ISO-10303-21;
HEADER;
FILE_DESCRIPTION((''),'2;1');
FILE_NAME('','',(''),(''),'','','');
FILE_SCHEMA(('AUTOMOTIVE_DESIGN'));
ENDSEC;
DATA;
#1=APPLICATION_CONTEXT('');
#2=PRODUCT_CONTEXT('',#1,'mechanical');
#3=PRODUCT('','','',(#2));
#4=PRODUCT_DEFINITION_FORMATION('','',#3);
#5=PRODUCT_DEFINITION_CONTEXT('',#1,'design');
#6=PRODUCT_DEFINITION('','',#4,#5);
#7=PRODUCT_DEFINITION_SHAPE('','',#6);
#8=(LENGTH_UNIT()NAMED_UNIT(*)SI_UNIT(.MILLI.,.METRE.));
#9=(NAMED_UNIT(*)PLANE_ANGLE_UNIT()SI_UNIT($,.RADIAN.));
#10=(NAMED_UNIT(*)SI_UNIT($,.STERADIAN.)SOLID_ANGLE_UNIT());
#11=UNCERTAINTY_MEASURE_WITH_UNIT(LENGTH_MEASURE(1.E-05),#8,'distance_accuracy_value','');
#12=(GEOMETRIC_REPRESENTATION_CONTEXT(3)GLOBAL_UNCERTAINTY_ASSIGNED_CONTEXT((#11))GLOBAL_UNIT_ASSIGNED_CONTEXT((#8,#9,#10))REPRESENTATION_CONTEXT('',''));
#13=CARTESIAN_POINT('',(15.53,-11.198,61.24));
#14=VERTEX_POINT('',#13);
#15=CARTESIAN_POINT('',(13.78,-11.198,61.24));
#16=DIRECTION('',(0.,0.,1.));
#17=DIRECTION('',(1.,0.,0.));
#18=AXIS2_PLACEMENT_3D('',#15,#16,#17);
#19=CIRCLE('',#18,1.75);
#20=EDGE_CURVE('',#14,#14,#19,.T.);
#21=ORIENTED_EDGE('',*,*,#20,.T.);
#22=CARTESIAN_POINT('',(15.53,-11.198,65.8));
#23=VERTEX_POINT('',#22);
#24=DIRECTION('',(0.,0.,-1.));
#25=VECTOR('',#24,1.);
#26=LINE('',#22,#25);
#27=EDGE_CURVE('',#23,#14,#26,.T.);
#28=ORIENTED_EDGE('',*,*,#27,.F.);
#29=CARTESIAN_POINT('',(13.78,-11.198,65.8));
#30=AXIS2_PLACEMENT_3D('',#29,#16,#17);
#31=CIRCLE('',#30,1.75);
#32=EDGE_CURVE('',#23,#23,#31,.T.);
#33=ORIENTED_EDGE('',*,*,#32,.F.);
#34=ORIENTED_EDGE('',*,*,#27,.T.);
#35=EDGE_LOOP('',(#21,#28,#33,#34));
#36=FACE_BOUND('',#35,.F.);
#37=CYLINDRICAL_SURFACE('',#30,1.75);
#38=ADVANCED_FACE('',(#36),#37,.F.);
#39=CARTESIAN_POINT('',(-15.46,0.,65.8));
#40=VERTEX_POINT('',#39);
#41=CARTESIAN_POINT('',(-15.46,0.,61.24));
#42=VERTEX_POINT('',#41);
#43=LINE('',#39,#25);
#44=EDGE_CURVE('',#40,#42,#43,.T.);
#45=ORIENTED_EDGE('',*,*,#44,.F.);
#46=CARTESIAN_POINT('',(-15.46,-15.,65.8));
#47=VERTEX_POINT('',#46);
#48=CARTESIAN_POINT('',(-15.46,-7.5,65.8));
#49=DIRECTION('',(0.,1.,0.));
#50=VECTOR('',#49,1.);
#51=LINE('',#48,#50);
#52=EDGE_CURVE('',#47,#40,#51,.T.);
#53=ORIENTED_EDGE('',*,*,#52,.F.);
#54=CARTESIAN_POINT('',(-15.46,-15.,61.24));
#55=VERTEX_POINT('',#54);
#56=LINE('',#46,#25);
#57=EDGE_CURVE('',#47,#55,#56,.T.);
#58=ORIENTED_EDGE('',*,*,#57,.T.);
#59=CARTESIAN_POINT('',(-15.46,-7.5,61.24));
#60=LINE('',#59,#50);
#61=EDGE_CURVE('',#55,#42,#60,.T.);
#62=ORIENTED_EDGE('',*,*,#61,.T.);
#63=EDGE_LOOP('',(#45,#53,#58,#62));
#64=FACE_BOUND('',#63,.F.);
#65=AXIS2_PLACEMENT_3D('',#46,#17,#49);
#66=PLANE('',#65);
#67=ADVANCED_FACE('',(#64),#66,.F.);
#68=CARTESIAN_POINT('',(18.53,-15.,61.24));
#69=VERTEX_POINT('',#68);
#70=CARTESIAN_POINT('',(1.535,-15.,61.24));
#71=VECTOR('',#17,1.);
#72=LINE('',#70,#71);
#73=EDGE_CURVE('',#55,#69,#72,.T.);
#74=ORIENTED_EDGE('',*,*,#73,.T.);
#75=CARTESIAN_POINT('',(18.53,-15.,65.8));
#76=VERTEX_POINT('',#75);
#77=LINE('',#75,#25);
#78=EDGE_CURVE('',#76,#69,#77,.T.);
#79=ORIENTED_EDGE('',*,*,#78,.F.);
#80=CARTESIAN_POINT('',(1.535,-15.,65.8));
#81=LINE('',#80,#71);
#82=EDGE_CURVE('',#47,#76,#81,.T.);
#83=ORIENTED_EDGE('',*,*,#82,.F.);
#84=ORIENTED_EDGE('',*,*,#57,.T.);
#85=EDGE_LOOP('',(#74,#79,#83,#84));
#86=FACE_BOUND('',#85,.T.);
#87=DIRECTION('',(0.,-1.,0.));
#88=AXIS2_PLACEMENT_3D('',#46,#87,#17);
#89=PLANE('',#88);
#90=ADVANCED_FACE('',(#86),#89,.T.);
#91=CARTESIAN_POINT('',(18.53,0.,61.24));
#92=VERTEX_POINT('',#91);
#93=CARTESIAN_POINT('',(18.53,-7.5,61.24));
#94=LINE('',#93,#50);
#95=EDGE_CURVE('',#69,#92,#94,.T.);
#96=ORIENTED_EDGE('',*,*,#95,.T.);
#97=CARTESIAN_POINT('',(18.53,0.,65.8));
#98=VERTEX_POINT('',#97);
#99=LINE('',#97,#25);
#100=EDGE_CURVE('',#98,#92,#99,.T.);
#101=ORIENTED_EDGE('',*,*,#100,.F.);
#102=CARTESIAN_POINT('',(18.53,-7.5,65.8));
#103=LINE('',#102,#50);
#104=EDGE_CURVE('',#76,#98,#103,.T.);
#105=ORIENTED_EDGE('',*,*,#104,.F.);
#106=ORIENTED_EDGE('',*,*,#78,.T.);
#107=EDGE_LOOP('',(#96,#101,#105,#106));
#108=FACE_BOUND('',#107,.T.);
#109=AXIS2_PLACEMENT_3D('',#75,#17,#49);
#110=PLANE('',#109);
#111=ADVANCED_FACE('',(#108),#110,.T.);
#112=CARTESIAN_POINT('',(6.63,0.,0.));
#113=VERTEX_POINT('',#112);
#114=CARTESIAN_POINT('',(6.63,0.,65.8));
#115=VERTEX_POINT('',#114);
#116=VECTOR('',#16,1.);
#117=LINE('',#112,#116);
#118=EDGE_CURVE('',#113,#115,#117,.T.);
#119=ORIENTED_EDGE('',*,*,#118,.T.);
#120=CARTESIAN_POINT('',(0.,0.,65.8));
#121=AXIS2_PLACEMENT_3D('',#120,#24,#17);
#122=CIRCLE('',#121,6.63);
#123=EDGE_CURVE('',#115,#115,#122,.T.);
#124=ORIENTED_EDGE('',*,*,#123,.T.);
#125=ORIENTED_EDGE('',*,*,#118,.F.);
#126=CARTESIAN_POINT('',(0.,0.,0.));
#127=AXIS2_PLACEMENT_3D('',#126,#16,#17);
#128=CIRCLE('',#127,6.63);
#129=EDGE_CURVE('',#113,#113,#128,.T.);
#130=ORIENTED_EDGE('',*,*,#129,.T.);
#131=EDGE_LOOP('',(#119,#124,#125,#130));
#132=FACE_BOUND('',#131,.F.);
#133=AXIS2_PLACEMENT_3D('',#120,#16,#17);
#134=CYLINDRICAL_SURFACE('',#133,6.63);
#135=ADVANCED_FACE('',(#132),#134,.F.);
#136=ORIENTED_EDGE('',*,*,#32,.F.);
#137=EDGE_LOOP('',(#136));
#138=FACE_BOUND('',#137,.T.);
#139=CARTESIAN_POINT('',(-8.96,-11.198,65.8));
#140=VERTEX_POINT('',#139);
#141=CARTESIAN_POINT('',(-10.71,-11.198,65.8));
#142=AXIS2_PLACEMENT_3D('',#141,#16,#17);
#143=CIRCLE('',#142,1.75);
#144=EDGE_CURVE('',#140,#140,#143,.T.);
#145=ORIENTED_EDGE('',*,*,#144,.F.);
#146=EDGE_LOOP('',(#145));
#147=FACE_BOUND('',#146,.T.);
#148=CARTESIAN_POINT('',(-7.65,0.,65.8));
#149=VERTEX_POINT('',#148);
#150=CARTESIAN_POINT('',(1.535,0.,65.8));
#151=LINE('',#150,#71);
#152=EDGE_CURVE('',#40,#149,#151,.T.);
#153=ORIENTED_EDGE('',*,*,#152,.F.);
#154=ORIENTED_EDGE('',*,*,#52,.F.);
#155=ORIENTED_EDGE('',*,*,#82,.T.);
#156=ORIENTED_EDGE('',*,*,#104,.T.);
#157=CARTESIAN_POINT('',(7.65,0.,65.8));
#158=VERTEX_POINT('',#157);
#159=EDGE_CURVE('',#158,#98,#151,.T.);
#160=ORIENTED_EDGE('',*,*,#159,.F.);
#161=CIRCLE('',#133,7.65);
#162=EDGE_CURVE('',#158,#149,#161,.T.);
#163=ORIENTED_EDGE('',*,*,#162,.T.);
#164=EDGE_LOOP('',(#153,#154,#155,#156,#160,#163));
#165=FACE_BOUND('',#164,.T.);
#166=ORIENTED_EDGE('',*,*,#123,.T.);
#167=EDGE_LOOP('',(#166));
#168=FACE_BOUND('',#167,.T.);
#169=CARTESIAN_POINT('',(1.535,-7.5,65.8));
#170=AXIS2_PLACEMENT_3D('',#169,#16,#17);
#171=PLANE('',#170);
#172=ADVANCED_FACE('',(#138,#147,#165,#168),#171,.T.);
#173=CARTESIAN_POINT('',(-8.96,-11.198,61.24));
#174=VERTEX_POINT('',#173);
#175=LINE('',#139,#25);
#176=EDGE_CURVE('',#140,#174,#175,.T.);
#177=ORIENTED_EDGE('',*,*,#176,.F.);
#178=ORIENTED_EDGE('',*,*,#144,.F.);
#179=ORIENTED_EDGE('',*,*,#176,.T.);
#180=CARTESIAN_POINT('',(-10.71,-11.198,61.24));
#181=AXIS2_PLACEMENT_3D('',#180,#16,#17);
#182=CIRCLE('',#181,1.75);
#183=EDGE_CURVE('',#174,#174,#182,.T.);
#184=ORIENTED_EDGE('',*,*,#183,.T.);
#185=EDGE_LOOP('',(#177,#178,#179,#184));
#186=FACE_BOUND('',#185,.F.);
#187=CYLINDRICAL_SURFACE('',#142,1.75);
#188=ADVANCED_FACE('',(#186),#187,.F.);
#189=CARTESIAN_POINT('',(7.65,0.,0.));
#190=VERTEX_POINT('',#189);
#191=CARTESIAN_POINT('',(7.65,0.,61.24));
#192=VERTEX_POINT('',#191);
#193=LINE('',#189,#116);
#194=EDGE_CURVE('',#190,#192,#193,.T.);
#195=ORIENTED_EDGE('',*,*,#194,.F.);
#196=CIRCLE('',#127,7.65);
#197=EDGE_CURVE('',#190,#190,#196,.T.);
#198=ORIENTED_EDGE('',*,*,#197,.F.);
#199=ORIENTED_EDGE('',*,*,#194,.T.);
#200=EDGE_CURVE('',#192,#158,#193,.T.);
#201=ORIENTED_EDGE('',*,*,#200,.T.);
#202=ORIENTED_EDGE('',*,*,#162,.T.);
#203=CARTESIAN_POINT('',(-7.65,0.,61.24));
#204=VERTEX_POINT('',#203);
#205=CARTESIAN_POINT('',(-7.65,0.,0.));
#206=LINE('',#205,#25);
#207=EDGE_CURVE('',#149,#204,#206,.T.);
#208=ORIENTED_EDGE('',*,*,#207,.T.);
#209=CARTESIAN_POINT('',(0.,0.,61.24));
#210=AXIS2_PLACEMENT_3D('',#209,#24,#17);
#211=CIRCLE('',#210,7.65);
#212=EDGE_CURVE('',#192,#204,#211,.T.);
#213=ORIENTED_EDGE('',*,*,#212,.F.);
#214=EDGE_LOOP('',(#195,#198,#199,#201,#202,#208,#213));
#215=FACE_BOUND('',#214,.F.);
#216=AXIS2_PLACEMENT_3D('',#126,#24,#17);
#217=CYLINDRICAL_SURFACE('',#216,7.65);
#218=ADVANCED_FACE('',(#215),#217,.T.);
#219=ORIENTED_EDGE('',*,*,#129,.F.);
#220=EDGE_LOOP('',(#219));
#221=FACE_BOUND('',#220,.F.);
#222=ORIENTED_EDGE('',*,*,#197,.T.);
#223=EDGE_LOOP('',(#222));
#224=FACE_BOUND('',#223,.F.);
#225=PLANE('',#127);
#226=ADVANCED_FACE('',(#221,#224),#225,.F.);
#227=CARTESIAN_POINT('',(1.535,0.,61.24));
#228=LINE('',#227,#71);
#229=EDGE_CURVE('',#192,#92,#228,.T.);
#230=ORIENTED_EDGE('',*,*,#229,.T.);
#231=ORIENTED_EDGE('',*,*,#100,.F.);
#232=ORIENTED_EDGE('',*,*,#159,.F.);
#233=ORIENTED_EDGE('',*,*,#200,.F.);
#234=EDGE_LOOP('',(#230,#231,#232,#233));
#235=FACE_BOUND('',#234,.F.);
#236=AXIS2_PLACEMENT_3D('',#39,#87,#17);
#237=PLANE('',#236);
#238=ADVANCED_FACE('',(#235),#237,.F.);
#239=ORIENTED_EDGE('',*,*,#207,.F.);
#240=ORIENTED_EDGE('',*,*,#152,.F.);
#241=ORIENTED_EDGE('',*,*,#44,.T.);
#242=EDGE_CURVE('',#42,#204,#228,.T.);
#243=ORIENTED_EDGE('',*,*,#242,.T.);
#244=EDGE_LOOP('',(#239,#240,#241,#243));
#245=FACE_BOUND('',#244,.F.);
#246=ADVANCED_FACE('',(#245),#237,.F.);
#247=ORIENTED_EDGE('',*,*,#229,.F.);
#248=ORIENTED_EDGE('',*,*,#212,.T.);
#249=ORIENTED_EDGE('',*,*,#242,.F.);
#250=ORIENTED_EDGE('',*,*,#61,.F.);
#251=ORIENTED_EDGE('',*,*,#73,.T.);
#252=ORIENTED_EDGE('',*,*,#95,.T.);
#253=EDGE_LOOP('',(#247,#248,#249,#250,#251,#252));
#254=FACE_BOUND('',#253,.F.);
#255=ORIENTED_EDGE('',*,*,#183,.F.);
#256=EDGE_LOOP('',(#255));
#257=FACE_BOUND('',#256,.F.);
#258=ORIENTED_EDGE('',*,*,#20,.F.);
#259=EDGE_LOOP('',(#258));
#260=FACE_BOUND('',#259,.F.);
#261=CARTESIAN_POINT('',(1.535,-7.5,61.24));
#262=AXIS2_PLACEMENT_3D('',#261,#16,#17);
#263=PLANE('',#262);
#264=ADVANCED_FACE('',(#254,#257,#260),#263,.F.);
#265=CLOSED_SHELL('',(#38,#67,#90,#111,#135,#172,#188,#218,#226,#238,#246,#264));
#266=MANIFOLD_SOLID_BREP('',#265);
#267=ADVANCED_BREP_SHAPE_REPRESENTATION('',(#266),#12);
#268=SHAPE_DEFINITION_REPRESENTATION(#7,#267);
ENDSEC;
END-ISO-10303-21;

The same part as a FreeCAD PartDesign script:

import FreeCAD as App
import Part
import Sketcher
Q = App.Units.Quantity

doc = App.newDocument("Part")
params = doc.addObject("Spreadsheet::Sheet", "Params")
for row, (alias, value) in enumerate([
    ("sketch1_diameter", "15.3 mm"),
    ("pad1_length", "65.8 mm"),
    ("sketch2_diameter", "13.26 mm"),
    ("sketch3_height", "15 mm"),
    ("sketch3_width", "33.99 mm"),
    ("pad2_length", "4.56 mm"),
    ("sketch4_diameter", "13.26 mm"),
    ("sketch5_diameter", "3.5 mm"),
], start=1):
    params.set(f"A{row}", alias)
    params.set(f"B{row}", "=" + value)
    params.setAlias(f"B{row}", alias)

body = doc.addObject("PartDesign::Body", "Body")

sketch1 = body.newObject("Sketcher::SketchObject", "Sketch")
sketch1.AttachmentSupport = (doc.getObject("XY_Plane"), [""])
sketch1.MapMode = "FlatFace"
sketch1.addGeometry(Part.Circle(App.Vector(0, 0, 0), App.Vector(0, 0, 1), 8), False)
sketch1.addConstraint([
    Sketcher.Constraint("Coincident", 0, 3, -1, 1),
    Sketcher.Constraint("Diameter", 0, Q("15.3 mm")),
])
sketch1.setExpression("Constraints[1]", "Params.sketch1_diameter")
pad1 = body.newObject("PartDesign::Pad", "Pad")
pad1.Profile = sketch1
pad1.setExpression("Length", "Params.pad1_length")

sketch2 = body.newObject("Sketcher::SketchObject", "Sketch001")
sketch2.AttachmentSupport = (doc.getObject("XY_Plane"), [""])
sketch2.MapMode = "FlatFace"
sketch2.AttachmentOffset = App.Placement(App.Vector(0, 0, 65.8), App.Rotation())
sketch2.addGeometry(Part.Circle(App.Vector(0, 0, 0), App.Vector(0, 0, 1), 7), False)
sketch2.addConstraint([
    Sketcher.Constraint("Coincident", 0, 3, -1, 1),
    Sketcher.Constraint("Diameter", 0, Q("13.26 mm")),
])
sketch2.setExpression("Constraints[1]", "Params.sketch2_diameter")
pocket1 = body.newObject("PartDesign::Pocket", "Pocket")
pocket1.Profile = sketch2
pocket1.Type = "ThroughAll"

sketch3 = body.newObject("Sketcher::SketchObject", "Sketch002")
sketch3.AttachmentSupport = (doc.getObject("XY_Plane"), [""])
sketch3.MapMode = "FlatFace"
sketch3.AttachmentOffset = App.Placement(App.Vector(0, 0, 65.8), App.Rotation())
sketch3.addGeometry([
    Part.LineSegment(App.Vector(-15, 0, 0), App.Vector(-15, -15, 0)),
    Part.LineSegment(App.Vector(-15, -15, 0), App.Vector(19, -15, 0)),
    Part.LineSegment(App.Vector(19, -15, 0), App.Vector(19, 0, 0)),
    Part.LineSegment(App.Vector(19, 0, 0), App.Vector(-15, 0, 0)),
], False)
sketch3.addConstraint([
    Sketcher.Constraint("Coincident", 0, 2, 1, 1),
    Sketcher.Constraint("Coincident", 1, 2, 2, 1),
    Sketcher.Constraint("Coincident", 2, 2, 3, 1),
    Sketcher.Constraint("Coincident", 3, 2, 0, 1),
    Sketcher.Constraint("Vertical", 0),
    Sketcher.Constraint("Horizontal", 1),
    Sketcher.Constraint("Vertical", 2),
    Sketcher.Constraint("Horizontal", 3),
    Sketcher.Constraint("PointOnObject", 2, 2, -1),
    Sketcher.Constraint("DistanceY", 0, 2, 0, 1, Q("15 mm")),
    Sketcher.Constraint("DistanceX", 1, 1, 1, 2, Q("33.99 mm")),
    Sketcher.Constraint("DistanceX", 0, 2, -1, 1, Q("15.46 mm")),
])
sketch3.setExpression("Constraints[9]", "Params.sketch3_height")
sketch3.setExpression("Constraints[10]", "Params.sketch3_width")
pad2 = body.newObject("PartDesign::Pad", "Pad001")
pad2.Profile = sketch3
pad2.setExpression("Length", "Params.pad2_length")
pad2.Reversed = True

sketch4 = body.newObject("Sketcher::SketchObject", "Sketch003")
sketch4.AttachmentSupport = (doc.getObject("XY_Plane"), [""])
sketch4.MapMode = "FlatFace"
sketch4.AttachmentOffset = App.Placement(App.Vector(0, 0, 65.8), App.Rotation())
sketch4.addGeometry(Part.Circle(App.Vector(0, 0, 0), App.Vector(0, 0, 1), 7), False)
sketch4.addConstraint([
    Sketcher.Constraint("Coincident", 0, 3, -1, 1),
    Sketcher.Constraint("Diameter", 0, Q("13.26 mm")),
])
sketch4.setExpression("Constraints[1]", "Params.sketch4_diameter")
pocket2 = body.newObject("PartDesign::Pocket", "Pocket001")
pocket2.Profile = sketch4
pocket2.Type = "ThroughAll"

sketch5 = body.newObject("Sketcher::SketchObject", "Sketch004")
sketch5.AttachmentSupport = (doc.getObject("XY_Plane"), [""])
sketch5.MapMode = "FlatFace"
sketch5.AttachmentOffset = App.Placement(App.Vector(0, 0, 65.8), App.Rotation())
sketch5.addGeometry([
    Part.Circle(App.Vector(-10.7, -11.2, 0), App.Vector(0, 0, 1), 1.8),
    Part.Circle(App.Vector(13.8, -11.2, 0), App.Vector(0, 0, 1), 1.8),
], False)
sketch5.addConstraint([
    Sketcher.Constraint("Equal", 0, 1),
    Sketcher.Constraint("Horizontal", 0, 3, 1, 3),
    Sketcher.Constraint("Diameter", 0, Q("3.5 mm")),
    Sketcher.Constraint("DistanceX", 0, 3, -1, 1, Q("10.71 mm")),
    Sketcher.Constraint("DistanceX", -1, 1, 1, 3, Q("13.78 mm")),
    Sketcher.Constraint("DistanceY", 0, 3, -1, 1, Q("11.198 mm")),
])
sketch5.setExpression("Constraints[2]", "Params.sketch5_diameter")
pocket3 = body.newObject("PartDesign::Pocket", "Pocket002")
pocket3.Profile = sketch5
pocket3.Type = "ThroughAll"

doc.recompute()
